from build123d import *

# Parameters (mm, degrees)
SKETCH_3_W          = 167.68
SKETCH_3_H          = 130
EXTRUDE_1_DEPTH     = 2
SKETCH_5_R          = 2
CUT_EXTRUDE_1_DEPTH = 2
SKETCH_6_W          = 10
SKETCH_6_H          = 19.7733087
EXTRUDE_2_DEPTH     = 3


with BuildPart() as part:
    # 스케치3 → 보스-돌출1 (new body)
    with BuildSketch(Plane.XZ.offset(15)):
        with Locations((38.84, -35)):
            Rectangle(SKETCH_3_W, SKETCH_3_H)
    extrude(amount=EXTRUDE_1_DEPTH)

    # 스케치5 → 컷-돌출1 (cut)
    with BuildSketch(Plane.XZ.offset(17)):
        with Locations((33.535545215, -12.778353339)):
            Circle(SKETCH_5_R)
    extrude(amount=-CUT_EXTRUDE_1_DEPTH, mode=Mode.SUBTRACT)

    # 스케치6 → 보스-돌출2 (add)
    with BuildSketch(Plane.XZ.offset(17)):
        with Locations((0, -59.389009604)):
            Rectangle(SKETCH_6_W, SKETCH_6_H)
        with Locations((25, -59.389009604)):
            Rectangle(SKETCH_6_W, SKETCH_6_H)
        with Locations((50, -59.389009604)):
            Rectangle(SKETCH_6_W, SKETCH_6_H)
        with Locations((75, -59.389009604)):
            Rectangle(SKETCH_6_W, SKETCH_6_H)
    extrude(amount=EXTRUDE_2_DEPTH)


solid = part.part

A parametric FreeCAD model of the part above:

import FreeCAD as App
import Part
import Sketcher

V = App.Vector

doc = App.newDocument("Part")
body = doc.addObject("PartDesign::Body", "Body")

sketch1 = body.newObject("Sketcher::SketchObject", "Sketch")
sketch1.AttachmentSupport = (doc.getObject("XZ_Plane"), [""])
sketch1.MapMode = "FlatFace"
sketch1.AttachmentOffset = App.Placement(V(0, 0, 15), App.Rotation())
sketch1.addGeometry([
    Part.LineSegment(V(-45, 30, 0), V(-45, -100, 0)),
    Part.LineSegment(V(-45, -100, 0), V(123, -100, 0)),
    Part.LineSegment(V(123, -100, 0), V(123, 30, 0)),
    Part.LineSegment(V(123, 30, 0), V(-45, 30, 0)),
], False)
sketch1.addConstraint([
    Sketcher.Constraint("Coincident", 0, 2, 1, 1),
    Sketcher.Constraint("Coincident", 1, 2, 2, 1),
    Sketcher.Constraint("Coincident", 2, 2, 3, 1),
    Sketcher.Constraint("Coincident", 3, 2, 0, 1),
    Sketcher.Constraint("Vertical", 0),
    Sketcher.Constraint("Horizontal", 1),
    Sketcher.Constraint("Vertical", 2),
    Sketcher.Constraint("Horizontal", 3),
    Sketcher.Constraint("DistanceY", 0, 2, 0, 1, 130.0),
    Sketcher.Constraint("DistanceX", 0, 2, -1, 1, 45.0),
    Sketcher.Constraint("DistanceY", 0, 2, -1, 1, 100.0),
    Sketcher.Constraint("DistanceX", 1, 1, 1, 2, 167.68),
])
pad1 = body.newObject("PartDesign::Pad", "Pad")
pad1.Profile = sketch1
pad1.Length = 2

sketch2 = body.newObject("Sketcher::SketchObject", "Sketch001")
sketch2.AttachmentSupport = (doc.getObject("XZ_Plane"), [""])
sketch2.MapMode = "FlatFace"
sketch2.AttachmentOffset = App.Placement(V(0, 0, 17), App.Rotation())
sketch2.addGeometry(Part.Circle(V(33.5, -12.8, 0), V(0, 0, 1), 2), False)
sketch2.addConstraint([
    Sketcher.Constraint("Diameter", 0, 4.0),
    Sketcher.Constraint("DistanceX", -1, 1, 0, 3, 33.535545),
    Sketcher.Constraint("DistanceY", 0, 3, -1, 1, 12.778353),
])
pocket1 = body.newObject("PartDesign::Pocket", "Pocket")
pocket1.Profile = sketch2
pocket1.Length = 2

sketch3 = body.newObject("Sketcher::SketchObject", "Sketch002")
sketch3.AttachmentSupport = (doc.getObject("XZ_Plane"), [""])
sketch3.MapMode = "FlatFace"
sketch3.AttachmentOffset = App.Placement(V(0, 0, 17), App.Rotation())
sketch3.addGeometry([
    Part.LineSegment(V(-5, -50, 0), V(-5, -69, 0)),
    Part.LineSegment(V(-5, -69, 0), V(5, -69, 0)),
    Part.LineSegment(V(5, -69, 0), V(5, -50, 0)),
    Part.LineSegment(V(5, -50, 0), V(-5, -50, 0)),
    Part.LineSegment(V(20, -50, 0), V(20, -69, 0)),
    Part.LineSegment(V(20, -69, 0), V(30, -69, 0)),
    Part.LineSegment(V(30, -69, 0), V(30, -50, 0)),
    Part.LineSegment(V(30, -50, 0), V(20, -50, 0)),
    Part.LineSegment(V(45, -50, 0), V(45, -69, 0)),
    Part.LineSegment(V(45, -69, 0), V(55, -69, 0)),
    Part.LineSegment(V(55, -69, 0), V(55, -50, 0)),
    Part.LineSegment(V(55, -50, 0), V(45, -50, 0)),
    Part.LineSegment(V(70, -50, 0), V(70, -69, 0)),
    Part.LineSegment(V(70, -69, 0), V(80, -69, 0)),
    Part.LineSegment(V(80, -69, 0), V(80, -50, 0)),
    Part.LineSegment(V(80, -50, 0), V(70, -50, 0)),
], False)
sketch3.addConstraint([
    Sketcher.Constraint("Coincident", 0, 2, 1, 1),
    Sketcher.Constraint("Coincident", 1, 2, 2, 1),
    Sketcher.Constraint("Coincident", 2, 2, 3, 1),
    Sketcher.Constraint("Coincident", 3, 2, 0, 1),
    Sketcher.Constraint("Coincident", 4, 2, 5, 1),
    Sketcher.Constraint("Coincident", 5, 2, 6, 1),
    Sketcher.Constraint("Coincident", 6, 2, 7, 1),
    Sketcher.Constraint("Coincident", 7, 2, 4, 1),
    Sketcher.Constraint("Coincident", 8, 2, 9, 1),
    Sketcher.Constraint("Coincident", 9, 2, 10, 1),
    Sketcher.Constraint("Coincident", 10, 2, 11, 1),
    Sketcher.Constraint("Coincident", 11, 2, 8, 1),
    Sketcher.Constraint("Coincident", 12, 2, 13, 1),
    Sketcher.Constraint("Coincident", 13, 2, 14, 1),
    Sketcher.Constraint("Coincident", 14, 2, 15, 1),
    Sketcher.Constraint("Coincident", 15, 2, 12, 1),
    Sketcher.Constraint("Vertical", 0),
    Sketcher.Constraint("Horizontal", 1),
    Sketcher.Constraint("Vertical", 2),
    Sketcher.Constraint("Horizontal", 3),
    Sketcher.Constraint("Vertical", 4),
    Sketcher.Constraint("Horizontal", 5),
    Sketcher.Constraint("Vertical", 6),
    Sketcher.Constraint("Horizontal", 7),
    Sketcher.Constraint("Vertical", 8),
    Sketcher.Constraint("Horizontal", 9),
    Sketcher.Constraint("Vertical", 10),
    Sketcher.Constraint("Horizontal", 11),
    Sketcher.Constraint("Vertical", 12),
    Sketcher.Constraint("Horizontal", 13),
    Sketcher.Constraint("Vertical", 14),
    Sketcher.Constraint("Horizontal", 15),
    Sketcher.Constraint("Horizontal", 1, 2, 4, 2),
    Sketcher.Constraint("Horizontal", 3, 2, 6, 2),
    Sketcher.Constraint("Horizontal", 5, 2, 8, 2),
    Sketcher.Constraint("Horizontal", 7, 2, 10, 2),
    Sketcher.Constraint("Horizontal", 9, 2, 12, 2),
    Sketcher.Constraint("Horizontal", 11, 2, 14, 2),
    Sketcher.Constraint("Equal", 3, 5),
    Sketcher.Constraint("Equal", 7, 9),
    Sketcher.Constraint("Equal", 11, 13),
    Sketcher.Constraint("DistanceX", 1, 1, 1, 2, 10.0),
    Sketcher.Constraint("DistanceX", 0, 2, -1, 1, 5.0),
    Sketcher.Constraint("DistanceX", -1, 1, 4, 2, 20.0),
    Sketcher.Constraint("DistanceX", -1, 1, 8, 2, 45.0),
    Sketcher.Constraint("DistanceX", -1, 1, 12, 2, 70.0),
    Sketcher.Constraint("DistanceY", 0, 2, 0, 1, 19.773309),
    Sketcher.Constraint("DistanceY", 0, 2, -1, 1, 69.275664),
])
pad2 = body.newObject("PartDesign::Pad", "Pad001")
pad2.Profile = sketch3
pad2.Length = 3

doc.recompute()
